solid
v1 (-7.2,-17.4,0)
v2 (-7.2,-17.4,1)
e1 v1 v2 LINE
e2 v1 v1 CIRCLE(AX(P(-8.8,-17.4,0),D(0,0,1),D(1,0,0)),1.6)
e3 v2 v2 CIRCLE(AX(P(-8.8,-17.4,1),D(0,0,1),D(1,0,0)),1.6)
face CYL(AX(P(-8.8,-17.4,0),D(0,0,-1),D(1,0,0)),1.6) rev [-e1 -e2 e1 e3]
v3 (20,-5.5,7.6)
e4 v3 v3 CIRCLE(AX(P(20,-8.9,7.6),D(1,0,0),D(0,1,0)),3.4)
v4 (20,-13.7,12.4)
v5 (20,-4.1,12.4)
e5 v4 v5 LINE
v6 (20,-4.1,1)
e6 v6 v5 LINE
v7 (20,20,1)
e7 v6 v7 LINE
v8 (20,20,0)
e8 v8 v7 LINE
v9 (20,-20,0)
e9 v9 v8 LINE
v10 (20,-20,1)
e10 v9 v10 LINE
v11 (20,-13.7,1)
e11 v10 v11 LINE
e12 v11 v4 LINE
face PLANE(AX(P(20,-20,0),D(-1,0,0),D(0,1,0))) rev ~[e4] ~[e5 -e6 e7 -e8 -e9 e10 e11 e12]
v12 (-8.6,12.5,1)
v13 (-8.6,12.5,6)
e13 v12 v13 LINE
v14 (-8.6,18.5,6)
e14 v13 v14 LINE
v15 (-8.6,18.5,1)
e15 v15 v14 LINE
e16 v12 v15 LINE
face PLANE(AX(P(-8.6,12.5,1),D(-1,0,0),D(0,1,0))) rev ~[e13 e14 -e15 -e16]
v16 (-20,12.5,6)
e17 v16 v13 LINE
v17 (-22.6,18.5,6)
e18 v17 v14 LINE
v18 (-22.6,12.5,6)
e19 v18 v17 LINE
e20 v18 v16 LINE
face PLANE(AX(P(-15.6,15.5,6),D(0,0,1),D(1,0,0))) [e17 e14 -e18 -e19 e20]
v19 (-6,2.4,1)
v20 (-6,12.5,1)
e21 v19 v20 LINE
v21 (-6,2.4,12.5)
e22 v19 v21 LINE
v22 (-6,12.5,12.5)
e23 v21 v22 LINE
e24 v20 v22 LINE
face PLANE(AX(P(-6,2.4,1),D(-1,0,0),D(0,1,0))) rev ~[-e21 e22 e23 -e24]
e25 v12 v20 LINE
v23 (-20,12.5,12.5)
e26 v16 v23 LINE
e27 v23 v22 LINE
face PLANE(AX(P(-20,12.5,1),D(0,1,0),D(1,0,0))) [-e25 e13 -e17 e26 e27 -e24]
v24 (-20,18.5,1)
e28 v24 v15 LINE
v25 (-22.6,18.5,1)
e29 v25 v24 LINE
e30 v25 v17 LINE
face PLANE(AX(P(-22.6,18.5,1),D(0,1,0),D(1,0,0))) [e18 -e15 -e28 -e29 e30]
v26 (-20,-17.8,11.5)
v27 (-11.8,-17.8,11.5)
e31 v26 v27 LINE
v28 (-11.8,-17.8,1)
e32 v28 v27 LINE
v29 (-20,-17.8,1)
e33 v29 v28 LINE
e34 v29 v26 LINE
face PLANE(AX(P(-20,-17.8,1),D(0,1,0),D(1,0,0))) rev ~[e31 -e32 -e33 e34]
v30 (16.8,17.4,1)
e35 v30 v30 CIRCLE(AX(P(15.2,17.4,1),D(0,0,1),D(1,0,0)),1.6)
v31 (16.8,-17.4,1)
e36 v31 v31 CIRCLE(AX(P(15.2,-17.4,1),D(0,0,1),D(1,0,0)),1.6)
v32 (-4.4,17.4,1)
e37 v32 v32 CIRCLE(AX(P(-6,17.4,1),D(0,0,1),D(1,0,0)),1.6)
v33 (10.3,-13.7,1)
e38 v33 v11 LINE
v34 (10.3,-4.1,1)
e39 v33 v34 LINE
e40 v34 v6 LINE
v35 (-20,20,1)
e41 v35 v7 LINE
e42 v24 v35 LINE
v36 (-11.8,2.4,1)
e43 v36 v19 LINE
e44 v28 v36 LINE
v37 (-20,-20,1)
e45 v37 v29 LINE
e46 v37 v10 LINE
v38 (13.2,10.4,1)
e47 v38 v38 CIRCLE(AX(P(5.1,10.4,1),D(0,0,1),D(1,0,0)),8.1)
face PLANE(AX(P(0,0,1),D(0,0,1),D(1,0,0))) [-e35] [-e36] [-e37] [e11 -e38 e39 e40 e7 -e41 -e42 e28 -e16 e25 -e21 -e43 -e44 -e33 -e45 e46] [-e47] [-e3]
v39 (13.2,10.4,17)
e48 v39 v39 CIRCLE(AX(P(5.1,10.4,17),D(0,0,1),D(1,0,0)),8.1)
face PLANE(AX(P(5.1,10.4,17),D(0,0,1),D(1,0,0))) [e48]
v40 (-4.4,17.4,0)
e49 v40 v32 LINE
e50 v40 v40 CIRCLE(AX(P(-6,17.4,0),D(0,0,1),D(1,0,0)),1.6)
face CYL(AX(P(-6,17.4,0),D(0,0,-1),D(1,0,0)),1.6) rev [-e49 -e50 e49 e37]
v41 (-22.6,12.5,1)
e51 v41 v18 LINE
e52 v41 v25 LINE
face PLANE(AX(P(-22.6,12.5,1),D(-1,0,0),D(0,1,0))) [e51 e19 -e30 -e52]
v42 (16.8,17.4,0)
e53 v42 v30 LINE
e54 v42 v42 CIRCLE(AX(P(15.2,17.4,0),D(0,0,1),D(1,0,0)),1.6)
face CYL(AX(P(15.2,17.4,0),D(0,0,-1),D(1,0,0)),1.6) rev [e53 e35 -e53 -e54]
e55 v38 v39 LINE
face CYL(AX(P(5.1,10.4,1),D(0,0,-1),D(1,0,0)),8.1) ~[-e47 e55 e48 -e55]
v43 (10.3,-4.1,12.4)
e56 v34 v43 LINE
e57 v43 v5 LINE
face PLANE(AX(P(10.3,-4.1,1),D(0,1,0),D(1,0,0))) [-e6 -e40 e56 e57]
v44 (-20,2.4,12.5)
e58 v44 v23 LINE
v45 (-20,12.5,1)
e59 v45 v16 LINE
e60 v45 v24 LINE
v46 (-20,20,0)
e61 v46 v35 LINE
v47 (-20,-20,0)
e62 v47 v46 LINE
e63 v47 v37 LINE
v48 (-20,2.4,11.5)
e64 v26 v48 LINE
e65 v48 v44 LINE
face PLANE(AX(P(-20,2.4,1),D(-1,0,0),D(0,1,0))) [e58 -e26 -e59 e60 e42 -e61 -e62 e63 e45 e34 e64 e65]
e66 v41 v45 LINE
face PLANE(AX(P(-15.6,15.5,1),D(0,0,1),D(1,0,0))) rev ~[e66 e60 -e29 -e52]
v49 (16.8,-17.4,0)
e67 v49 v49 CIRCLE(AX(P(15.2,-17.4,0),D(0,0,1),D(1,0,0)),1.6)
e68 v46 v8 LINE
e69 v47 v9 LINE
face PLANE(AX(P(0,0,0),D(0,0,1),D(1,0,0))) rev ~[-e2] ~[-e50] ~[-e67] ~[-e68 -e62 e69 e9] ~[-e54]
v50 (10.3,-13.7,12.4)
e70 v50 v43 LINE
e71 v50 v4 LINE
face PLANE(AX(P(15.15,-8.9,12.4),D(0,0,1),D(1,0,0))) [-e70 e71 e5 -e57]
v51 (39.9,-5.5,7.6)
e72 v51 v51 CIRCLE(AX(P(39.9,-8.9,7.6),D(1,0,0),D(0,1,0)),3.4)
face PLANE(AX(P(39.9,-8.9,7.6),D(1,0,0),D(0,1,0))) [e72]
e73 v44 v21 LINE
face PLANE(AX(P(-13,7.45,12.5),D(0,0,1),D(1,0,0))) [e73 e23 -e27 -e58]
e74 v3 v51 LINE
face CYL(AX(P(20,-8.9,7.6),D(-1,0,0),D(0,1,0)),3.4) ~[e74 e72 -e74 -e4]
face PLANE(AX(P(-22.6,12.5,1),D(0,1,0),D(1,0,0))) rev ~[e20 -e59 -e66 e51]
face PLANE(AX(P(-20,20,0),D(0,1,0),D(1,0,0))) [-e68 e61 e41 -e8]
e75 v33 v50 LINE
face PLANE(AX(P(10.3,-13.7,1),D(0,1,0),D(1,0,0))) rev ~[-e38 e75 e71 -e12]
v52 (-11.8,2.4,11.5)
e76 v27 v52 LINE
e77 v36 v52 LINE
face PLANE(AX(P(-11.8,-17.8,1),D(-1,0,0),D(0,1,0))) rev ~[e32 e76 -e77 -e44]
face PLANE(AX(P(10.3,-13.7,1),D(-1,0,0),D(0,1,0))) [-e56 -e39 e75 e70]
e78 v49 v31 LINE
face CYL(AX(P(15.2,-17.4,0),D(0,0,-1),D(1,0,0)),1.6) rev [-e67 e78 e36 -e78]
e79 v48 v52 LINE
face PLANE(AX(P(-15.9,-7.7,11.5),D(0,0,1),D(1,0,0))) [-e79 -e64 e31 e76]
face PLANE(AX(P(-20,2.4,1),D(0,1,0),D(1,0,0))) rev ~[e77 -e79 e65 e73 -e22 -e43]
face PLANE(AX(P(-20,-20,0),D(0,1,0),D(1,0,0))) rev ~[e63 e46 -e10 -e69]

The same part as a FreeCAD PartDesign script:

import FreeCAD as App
import Part
import Sketcher
from FreeCAD import Vector


def add_polygon(sketch, points):
    """Adds a closed chain of lines whose ends are joined by coincident constraints."""
    first, n = sketch.GeometryCount, len(points)
    for a, b in zip(points, points[1:] + points[:1]):
        sketch.addGeometry(Part.LineSegment(App.Vector(*a, 0), App.Vector(*b, 0)), False)
    for i in range(n):
        sketch.addConstraint(Sketcher.Constraint("Coincident", first + i, 2, first + (i + 1) % n, 1))

doc = App.newDocument("Part")
body = doc.addObject("PartDesign::Body", "Body")

sketch1 = body.newObject("Sketcher::SketchObject", "Sketch")
sketch1.AttachmentSupport = (doc.getObject("XY_Plane"), [""])
sketch1.MapMode = "FlatFace"
add_polygon(sketch1, [(-20, 20), (-20, -20), (20, -20), (20, 20)])
sketch1.addGeometry(Part.Circle(Vector(-8.8, -17.4, 0), Vector(0, 0, 1), 1.6), False)
sketch1.addGeometry(Part.Circle(Vector(15.2, -17.4, 0), Vector(0, 0, 1), 1.6), False)
sketch1.addGeometry(Part.Circle(Vector(-6, 17.4, 0), Vector(0, 0, 1), 1.6), False)
sketch1.addGeometry(Part.Circle(Vector(15.2, 17.4, 0), Vector(0, 0, 1), 1.6), False)
sketch1.addConstraint([
    Sketcher.Constraint("Vertical", 0),
    Sketcher.Constraint("Horizontal", 1),
    Sketcher.Constraint("Vertical", 2),
    Sketcher.Constraint("Horizontal", 3),
    Sketcher.Constraint("Equal", 4, 5),
    Sketcher.Constraint("Equal", 5, 6),
    Sketcher.Constraint("Equal", 6, 7),
    Sketcher.Constraint("Symmetric", 0, 2, 2, 2, -1, 1),
    Sketcher.Constraint("Symmetric", 5, 3, 7, 3, -1),
    Sketcher.Constraint("Horizontal", 4, 3, 5, 3),
    Sketcher.Constraint("Horizontal", 6, 3, 7, 3),
    Sketcher.Constraint("Equal", 3, 0),
    Sketcher.Constraint("Diameter", 4, 3.2),
    Sketcher.Constraint("DistanceX", 1, 1, 1, 2, 40.0),
    Sketcher.Constraint("DistanceX", 6, 3, -1, 1, 6.0),
    Sketcher.Constraint("DistanceX", 4, 3, 5, 3, 24.0),
    Sketcher.Constraint("DistanceX", 4, 3, -1, 1, 8.8),
    Sketcher.Constraint("DistanceY", 4, 3, -1, 1, 17.4),
])
pad1 = body.newObject("PartDesign::Pad", "Pad")
pad1.Profile = sketch1
pad1.Length = 1

sketch2 = body.newObject("Sketcher::SketchObject", "Sketch001")
sketch2.AttachmentSupport = (doc.getObject("XY_Plane"), [""])
sketch2.MapMode = "FlatFace"
sketch2.AttachmentOffset = App.Placement(Vector(0, 0, 1), App.Rotation())
add_polygon(sketch2, [(10.3, -4.1), (10.3, -13.7), (20, -13.7), (20, -4.1)])
sketch2.addConstraint([
    Sketcher.Constraint("Vertical", 0),
    Sketcher.Constraint("Horizontal", 1),
    Sketcher.Constraint("Vertical", 2),
    Sketcher.Constraint("Horizontal", 3),
    Sketcher.Constraint("DistanceX", 1, 1, 1, 2, 9.7),
    Sketcher.Constraint("DistanceY", 0, 2, 0, 1, 9.6),
    Sketcher.Constraint("DistanceX", -1, 1, 1, 2, 20.0),
    Sketcher.Constraint("DistanceY", 0, 2, -1, 1, 13.7),
])
pad2 = body.newObject("PartDesign::Pad", "Pad001")
pad2.Profile = sketch2
pad2.Length = 11.4

sketch3 = body.newObject("Sketcher::SketchObject", "Sketch002")
sketch3.AttachmentSupport = (doc.getObject("YZ_Plane"), [""])
sketch3.MapMode = "FlatFace"
sketch3.AttachmentOffset = App.Placement(Vector(0, 0, 20), App.Rotation())
sketch3.addGeometry(Part.Circle(Vector(-8.9, 7.6, 0), Vector(0, 0, 1), 3.4), False)
sketch3.addConstraint([
    Sketcher.Constraint("Diameter", 0, 6.8),
    Sketcher.Constraint("DistanceX", 0, 3, -1, 1, 8.9),
    Sketcher.Constraint("DistanceY", -1, 1, 0, 3, 7.6),
])
pad3 = body.newObject("PartDesign::Pad", "Pad002")
pad3.Profile = sketch3
pad3.Length = 19.9

sketch4 = body.newObject("Sketcher::SketchObject", "Sketch003")
sketch4.AttachmentSupport = (doc.getObject("XY_Plane"), [""])
sketch4.MapMode = "FlatFace"
sketch4.AttachmentOffset = App.Placement(Vector(0, 0, 1), App.Rotation())
sketch4.addGeometry(Part.Circle(Vector(5.1, 10.4, 0), Vector(0, 0, 1), 8.1), False)
sketch4.addConstraint([
    Sketcher.Constraint("Diameter", 0, 16.2),
    Sketcher.Constraint("DistanceX", -1, 1, 0, 3, 5.1),
    Sketcher.Constraint("DistanceY", -1, 1, 0, 3, 10.4),
])
pad4 = body.newObject("PartDesign::Pad", "Pad003")
pad4.Profile = sketch4
pad4.Length = 16

sketch5 = body.newObject("Sketcher::SketchObject", "Sketch004")
sketch5.AttachmentSupport = (doc.getObject("XY_Plane"), [""])
sketch5.MapMode = "FlatFace"
sketch5.AttachmentOffset = App.Placement(Vector(0, 0, 1), App.Rotation())
add_polygon(sketch5, [(-22.6, 18.5), (-22.6, 12.5), (-8.6, 12.5), (-8.6, 18.5)])
sketch5.addConstraint([
    Sketcher.Constraint("Vertical", 0),
    Sketcher.Constraint("Horizontal", 1),
    Sketcher.Constraint("Vertical", 2),
    Sketcher.Constraint("Horizontal", 3),
    Sketcher.Constraint("DistanceX", 1, 1, 1, 2, 14.0),
    Sketcher.Constraint("DistanceY", 0, 2, 0, 1, 6.0),
    Sketcher.Constraint("DistanceX", 0, 2, -1, 1, 22.6),
    Sketcher.Constraint("DistanceY", -1, 1, 0, 2, 12.5),
])
pad5 = body.newObject("PartDesign::Pad", "Pad004")
pad5.Profile = sketch5
pad5.Length = 5

sketch6 = body.newObject("Sketcher::SketchObject", "Sketch005")
sketch6.AttachmentSupport = (doc.getObject("XY_Plane"), [""])
sketch6.MapMode = "FlatFace"
sketch6.AttachmentOffset = App.Placement(Vector(0, 0, 1), App.Rotation())
add_polygon(sketch6, [(-20, 2.4), (-20, -17.8), (-11.8, -17.8), (-11.8, 2.4)])
sketch6.addConstraint([
    Sketcher.Constraint("Vertical", 0),
    Sketcher.Constraint("Horizontal", 1),
    Sketcher.Constraint("Vertical", 2),
    Sketcher.Constraint("Horizontal", 3),
    Sketcher.Constraint("DistanceX", 1, 1, 1, 2, 8.2),
    Sketcher.Constraint("DistanceY", 0, 2, 0, 1, 20.2),
    Sketcher.Constraint("DistanceX", 0, 2, -1, 1, 20.0),
    Sketcher.Constraint("DistanceY", 0, 2, -1, 1, 17.8),
])
pad6 = body.newObject("PartDesign::Pad", "Pad005")
pad6.Profile = sketch6
pad6.Length = 10.5

sketch7 = body.newObject("Sketcher::SketchObject", "Sketch006")
sketch7.AttachmentSupport = (doc.getObject("XY_Plane"), [""])
sketch7.MapMode = "FlatFace"
sketch7.AttachmentOffset = App.Placement(Vector(0, 0, 1), App.Rotation())
add_polygon(sketch7, [(-20, 12.5), (-20, 2.4), (-6, 2.4), (-6, 12.5)])
sketch7.addConstraint([
    Sketcher.Constraint("Vertical", 0),
    Sketcher.Constraint("Horizontal", 1),
    Sketcher.Constraint("Vertical", 2),
    Sketcher.Constraint("Horizontal", 3),
    Sketcher.Constraint("DistanceX", 1, 1, 1, 2, 14.0),
    Sketcher.Constraint("DistanceY", 0, 2, 0, 1, 10.1),
    Sketcher.Constraint("DistanceX", 0, 2, -1, 1, 20.0),
    Sketcher.Constraint("DistanceY", -1, 1, 0, 2, 2.4),
])
pad7 = body.newObject("PartDesign::Pad", "Pad006")
pad7.Profile = sketch7
pad7.Length = 11.5

doc.recompute()
